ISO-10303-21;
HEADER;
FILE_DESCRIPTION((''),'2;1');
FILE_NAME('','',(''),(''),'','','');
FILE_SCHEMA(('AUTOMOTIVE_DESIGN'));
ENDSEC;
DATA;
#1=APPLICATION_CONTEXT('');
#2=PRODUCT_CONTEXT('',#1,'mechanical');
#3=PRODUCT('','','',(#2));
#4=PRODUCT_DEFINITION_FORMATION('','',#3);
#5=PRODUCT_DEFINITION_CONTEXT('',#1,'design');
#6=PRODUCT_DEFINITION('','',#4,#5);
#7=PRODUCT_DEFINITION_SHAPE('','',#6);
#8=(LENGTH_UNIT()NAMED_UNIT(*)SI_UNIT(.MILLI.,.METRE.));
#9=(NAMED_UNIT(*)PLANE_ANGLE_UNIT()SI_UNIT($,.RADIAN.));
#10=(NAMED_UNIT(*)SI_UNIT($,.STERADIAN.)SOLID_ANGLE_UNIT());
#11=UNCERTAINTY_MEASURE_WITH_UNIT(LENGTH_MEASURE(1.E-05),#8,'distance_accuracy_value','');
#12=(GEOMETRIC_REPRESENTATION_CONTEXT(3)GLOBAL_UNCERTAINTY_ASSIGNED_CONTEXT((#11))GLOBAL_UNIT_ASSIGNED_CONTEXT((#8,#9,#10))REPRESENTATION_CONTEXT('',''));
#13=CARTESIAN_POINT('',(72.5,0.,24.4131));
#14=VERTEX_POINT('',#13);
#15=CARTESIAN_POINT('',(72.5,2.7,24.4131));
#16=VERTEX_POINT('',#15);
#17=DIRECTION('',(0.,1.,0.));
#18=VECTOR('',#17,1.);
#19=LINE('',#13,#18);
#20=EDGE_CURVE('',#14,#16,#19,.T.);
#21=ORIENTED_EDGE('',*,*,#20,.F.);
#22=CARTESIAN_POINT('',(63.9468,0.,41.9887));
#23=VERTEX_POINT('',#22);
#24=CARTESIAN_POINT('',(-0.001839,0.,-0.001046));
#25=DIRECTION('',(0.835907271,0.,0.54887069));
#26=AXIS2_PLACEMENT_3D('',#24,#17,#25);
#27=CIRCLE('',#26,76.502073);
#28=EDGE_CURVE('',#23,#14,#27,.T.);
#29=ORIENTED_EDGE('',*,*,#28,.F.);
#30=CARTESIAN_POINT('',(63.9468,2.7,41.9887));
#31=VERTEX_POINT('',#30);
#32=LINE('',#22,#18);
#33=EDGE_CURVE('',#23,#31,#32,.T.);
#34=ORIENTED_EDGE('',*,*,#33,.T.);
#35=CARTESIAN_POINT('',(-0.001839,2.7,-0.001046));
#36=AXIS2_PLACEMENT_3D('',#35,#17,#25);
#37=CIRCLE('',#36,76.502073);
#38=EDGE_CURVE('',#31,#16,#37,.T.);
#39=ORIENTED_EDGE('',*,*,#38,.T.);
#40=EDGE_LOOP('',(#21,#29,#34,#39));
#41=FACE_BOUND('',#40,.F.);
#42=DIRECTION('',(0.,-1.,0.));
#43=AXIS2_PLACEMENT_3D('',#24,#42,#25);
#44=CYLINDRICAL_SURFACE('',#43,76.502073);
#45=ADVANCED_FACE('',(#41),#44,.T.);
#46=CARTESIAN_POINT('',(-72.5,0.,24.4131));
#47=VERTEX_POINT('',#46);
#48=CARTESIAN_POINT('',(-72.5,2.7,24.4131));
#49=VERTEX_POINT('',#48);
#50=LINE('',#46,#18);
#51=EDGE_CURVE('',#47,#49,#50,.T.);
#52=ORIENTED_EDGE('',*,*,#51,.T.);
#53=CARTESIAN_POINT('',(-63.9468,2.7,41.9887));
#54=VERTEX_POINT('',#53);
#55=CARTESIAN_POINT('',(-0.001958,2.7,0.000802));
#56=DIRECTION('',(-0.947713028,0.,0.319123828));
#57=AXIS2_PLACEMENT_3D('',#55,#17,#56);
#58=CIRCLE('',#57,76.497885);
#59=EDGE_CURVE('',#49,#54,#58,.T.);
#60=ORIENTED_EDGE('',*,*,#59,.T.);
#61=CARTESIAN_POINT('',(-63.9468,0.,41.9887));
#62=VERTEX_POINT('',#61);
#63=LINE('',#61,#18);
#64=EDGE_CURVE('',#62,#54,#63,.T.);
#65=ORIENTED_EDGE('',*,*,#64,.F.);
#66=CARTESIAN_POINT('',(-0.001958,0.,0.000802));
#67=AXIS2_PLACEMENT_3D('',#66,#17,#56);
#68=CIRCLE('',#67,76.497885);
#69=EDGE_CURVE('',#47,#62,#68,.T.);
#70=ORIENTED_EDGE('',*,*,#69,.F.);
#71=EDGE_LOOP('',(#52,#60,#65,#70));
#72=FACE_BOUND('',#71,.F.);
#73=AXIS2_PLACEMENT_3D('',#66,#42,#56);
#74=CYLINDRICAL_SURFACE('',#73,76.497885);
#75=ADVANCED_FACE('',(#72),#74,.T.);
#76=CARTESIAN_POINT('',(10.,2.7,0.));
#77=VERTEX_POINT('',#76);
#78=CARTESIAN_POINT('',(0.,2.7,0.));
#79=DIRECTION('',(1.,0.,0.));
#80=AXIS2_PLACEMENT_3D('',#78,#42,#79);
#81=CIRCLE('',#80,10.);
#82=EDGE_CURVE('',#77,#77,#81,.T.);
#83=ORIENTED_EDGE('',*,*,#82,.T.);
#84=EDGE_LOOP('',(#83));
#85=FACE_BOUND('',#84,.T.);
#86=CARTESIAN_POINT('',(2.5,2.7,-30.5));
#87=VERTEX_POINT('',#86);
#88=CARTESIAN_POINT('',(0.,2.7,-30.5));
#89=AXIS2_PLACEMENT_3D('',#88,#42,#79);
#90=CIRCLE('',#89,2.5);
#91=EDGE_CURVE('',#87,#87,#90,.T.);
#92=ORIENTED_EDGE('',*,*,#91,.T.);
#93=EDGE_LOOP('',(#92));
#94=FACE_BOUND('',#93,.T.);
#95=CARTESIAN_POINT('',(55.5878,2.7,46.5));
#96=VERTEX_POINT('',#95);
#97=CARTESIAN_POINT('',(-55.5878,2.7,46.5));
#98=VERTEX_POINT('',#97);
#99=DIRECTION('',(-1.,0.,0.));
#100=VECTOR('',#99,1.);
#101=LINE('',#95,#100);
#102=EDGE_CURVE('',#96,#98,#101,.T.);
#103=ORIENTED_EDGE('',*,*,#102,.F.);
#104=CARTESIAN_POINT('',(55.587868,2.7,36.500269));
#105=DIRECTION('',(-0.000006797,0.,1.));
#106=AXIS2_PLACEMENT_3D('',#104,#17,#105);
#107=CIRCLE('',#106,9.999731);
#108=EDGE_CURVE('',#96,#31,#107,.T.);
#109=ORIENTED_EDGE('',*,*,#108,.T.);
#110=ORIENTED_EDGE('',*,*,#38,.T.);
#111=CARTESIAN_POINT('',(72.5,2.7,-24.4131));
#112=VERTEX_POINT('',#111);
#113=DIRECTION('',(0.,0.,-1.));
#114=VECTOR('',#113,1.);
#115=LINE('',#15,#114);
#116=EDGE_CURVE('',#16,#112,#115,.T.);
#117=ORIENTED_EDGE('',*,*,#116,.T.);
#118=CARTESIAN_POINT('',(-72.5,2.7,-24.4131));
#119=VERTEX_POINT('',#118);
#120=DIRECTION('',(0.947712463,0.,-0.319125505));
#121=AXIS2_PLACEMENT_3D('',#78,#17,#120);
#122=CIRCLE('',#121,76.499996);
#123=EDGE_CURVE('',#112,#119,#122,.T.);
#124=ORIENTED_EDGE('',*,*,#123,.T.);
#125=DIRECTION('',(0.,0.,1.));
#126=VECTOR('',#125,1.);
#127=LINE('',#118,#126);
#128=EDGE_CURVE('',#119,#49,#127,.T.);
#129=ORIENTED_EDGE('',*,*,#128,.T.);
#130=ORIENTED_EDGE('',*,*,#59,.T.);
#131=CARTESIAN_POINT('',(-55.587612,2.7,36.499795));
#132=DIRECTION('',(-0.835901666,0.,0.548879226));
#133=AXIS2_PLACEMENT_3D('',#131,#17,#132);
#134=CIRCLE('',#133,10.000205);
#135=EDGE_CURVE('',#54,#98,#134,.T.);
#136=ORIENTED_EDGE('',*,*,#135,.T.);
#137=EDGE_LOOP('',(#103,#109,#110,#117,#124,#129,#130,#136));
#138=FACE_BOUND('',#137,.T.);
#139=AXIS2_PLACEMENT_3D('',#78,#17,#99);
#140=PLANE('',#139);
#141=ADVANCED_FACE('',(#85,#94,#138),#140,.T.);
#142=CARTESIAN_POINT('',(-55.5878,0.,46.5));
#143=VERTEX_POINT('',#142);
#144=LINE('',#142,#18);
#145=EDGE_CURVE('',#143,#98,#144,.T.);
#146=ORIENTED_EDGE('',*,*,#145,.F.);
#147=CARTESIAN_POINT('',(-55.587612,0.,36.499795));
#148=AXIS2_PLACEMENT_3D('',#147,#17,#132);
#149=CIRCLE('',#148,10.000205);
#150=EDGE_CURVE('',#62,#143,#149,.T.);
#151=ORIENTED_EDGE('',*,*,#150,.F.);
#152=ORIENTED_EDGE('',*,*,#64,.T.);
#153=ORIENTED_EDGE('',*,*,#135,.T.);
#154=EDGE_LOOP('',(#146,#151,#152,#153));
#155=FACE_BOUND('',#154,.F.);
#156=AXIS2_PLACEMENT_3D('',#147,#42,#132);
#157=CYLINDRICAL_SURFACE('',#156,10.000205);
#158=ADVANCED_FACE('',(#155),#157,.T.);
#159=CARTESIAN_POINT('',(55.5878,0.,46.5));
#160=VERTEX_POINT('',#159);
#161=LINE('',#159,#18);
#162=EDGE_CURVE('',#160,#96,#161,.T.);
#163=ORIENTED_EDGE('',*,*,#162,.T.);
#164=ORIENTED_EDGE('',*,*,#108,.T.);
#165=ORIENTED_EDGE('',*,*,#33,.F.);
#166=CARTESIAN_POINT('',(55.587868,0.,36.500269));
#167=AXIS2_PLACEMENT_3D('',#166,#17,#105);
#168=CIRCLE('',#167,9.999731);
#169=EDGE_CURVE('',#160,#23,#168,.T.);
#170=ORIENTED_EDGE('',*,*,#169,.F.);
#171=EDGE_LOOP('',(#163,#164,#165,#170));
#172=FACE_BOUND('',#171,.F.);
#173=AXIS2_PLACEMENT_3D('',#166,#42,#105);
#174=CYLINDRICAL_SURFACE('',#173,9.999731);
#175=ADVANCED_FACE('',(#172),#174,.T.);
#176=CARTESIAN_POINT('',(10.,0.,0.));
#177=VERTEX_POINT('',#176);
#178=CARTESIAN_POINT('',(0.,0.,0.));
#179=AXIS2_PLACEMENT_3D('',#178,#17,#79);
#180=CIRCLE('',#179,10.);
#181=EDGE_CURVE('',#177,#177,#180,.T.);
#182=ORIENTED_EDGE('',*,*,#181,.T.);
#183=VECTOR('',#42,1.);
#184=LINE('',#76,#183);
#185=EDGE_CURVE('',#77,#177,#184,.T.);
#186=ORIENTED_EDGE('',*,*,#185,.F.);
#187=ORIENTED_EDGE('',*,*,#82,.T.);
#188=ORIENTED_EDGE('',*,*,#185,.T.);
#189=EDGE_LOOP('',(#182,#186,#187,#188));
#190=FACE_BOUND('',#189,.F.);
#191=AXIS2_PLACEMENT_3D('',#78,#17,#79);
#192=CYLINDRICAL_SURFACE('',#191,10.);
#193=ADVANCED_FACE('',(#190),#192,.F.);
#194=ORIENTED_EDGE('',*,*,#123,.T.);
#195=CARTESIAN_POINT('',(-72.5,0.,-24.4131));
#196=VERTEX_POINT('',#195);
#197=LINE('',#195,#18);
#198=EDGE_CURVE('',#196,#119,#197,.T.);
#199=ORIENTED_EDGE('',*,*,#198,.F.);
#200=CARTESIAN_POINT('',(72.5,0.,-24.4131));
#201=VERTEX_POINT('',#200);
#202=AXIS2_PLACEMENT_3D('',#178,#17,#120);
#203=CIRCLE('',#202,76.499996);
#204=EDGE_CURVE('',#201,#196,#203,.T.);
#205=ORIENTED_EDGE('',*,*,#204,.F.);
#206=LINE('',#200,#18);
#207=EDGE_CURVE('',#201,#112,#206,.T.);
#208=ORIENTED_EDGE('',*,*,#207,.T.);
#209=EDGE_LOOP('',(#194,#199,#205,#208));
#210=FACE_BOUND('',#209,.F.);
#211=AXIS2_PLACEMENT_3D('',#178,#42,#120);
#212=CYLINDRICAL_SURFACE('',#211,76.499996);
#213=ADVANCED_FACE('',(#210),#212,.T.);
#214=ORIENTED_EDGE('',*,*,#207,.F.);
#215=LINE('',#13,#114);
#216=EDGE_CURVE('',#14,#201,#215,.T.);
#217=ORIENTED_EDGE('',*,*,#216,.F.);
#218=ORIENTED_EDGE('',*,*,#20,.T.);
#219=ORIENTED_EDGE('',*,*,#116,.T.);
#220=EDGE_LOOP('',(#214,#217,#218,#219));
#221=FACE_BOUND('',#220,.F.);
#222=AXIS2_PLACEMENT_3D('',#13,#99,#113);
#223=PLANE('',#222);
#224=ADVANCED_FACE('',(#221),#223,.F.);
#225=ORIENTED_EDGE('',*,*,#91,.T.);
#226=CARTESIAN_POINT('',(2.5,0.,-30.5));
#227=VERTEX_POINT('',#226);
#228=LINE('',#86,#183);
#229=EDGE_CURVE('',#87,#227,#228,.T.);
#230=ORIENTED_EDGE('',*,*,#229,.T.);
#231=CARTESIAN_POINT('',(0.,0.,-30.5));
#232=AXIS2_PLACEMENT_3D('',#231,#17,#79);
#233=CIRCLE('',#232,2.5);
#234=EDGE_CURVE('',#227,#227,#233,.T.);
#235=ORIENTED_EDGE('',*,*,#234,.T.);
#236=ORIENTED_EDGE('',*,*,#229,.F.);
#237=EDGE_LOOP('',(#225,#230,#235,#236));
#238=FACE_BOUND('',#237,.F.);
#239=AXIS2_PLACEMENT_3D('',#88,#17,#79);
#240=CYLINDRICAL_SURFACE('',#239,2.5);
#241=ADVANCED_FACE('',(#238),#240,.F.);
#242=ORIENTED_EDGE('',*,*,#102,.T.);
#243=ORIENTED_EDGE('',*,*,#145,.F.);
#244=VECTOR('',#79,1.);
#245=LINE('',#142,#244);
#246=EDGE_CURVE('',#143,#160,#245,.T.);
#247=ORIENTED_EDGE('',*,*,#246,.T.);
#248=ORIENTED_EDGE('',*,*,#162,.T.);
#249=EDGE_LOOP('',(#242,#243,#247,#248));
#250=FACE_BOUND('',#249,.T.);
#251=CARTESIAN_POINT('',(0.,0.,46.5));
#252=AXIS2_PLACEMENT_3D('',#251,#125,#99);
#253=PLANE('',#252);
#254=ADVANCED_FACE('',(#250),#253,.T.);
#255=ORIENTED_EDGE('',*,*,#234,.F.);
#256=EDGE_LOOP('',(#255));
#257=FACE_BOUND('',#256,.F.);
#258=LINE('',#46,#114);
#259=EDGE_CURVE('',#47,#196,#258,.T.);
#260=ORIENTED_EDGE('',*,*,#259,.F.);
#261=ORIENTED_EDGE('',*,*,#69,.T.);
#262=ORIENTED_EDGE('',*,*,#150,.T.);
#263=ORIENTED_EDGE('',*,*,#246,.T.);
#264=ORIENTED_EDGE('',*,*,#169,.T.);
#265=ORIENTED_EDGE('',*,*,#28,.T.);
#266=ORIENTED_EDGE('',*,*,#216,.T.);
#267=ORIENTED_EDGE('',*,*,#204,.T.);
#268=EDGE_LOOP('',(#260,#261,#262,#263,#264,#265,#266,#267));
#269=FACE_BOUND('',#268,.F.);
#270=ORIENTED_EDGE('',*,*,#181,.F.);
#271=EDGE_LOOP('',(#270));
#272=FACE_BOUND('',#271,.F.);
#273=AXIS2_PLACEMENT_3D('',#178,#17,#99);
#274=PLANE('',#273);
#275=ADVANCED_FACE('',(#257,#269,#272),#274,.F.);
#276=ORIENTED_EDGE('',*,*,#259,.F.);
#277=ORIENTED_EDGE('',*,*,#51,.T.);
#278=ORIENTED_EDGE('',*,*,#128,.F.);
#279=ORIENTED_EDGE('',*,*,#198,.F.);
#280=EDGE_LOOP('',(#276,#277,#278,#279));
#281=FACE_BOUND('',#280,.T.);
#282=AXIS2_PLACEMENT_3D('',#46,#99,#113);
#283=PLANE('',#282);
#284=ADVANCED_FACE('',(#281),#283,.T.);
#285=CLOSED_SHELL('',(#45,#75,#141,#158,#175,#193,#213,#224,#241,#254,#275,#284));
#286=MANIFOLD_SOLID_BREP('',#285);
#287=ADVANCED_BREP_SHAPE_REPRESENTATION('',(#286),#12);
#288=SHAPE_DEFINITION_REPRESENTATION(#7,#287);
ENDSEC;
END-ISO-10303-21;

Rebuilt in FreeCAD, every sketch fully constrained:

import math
import FreeCAD as App
import Part
import Sketcher

V = App.Vector
Q = App.Units.Quantity

doc = App.newDocument("Part")
body = doc.addObject("PartDesign::Body", "Body")

sketch1 = doc.addObject("Sketcher::SketchObject", "Sketch")
body.addObject(sketch1)
sketch1.AttachmentSupport = (doc.XZ_Plane, [""])
sketch1.MapMode = "FlatFace"
sketch1.addGeometry([
    Part.LineSegment(V(-55.5878, 46.5, 0), V(55.5878, 46.5, 0)),
    Part.ArcOfCircle(Part.Circle(V(55.5878, 36.5, 0), V(0, 0, 1), 10), math.radians(33.289768), math.radians(90)),
    Part.ArcOfCircle(Part.Circle(V(-0.001839, -0.001046, 0), V(0, 0, 1), 76.502073), math.radians(18.61035), math.radians(33.289572)),
    Part.LineSegment(V(72.5, 24.4131, 0), V(72.5, -24.4131, 0)),
    Part.ArcOfCircle(Part.Circle(V(0, 0, 0), V(0, 0, 1), 76.499996), math.radians(-161.389953), math.radians(-18.610047)),
    Part.LineSegment(V(-72.5, -24.4131, 0), V(-72.5, 24.4131, 0)),
    Part.ArcOfCircle(Part.Circle(V(-0.001958, 0.000802, 0), V(0, 0, 1), 76.497885), math.radians(146.710024), math.radians(161.390054)),
    Part.ArcOfCircle(Part.Circle(V(-55.5878, 36.5, 0), V(0, 0, 1), 9.999935), math.radians(90), math.radians(146.710232)),
], False)
sketch1.addConstraint([
    Sketcher.Constraint("Tangent", 0, 2, 1, 2),
    Sketcher.Constraint("Tangent", 1, 1, 2, 2),
    Sketcher.Constraint("Coincident", 2, 1, 3, 1),
    Sketcher.Constraint("Coincident", 3, 2, 4, 2),
    Sketcher.Constraint("Coincident", 4, 1, 5, 1),
    Sketcher.Constraint("Coincident", 5, 2, 6, 2),
    Sketcher.Constraint("Tangent", 6, 1, 7, 2),
    Sketcher.Constraint("Tangent", 7, 1, 0, 1),
    Sketcher.Constraint("Horizontal", 0),
    Sketcher.Constraint("Vertical", 3),
    Sketcher.Constraint("Vertical", 5),
    Sketcher.Constraint("Coincident", 4, 3, -1, 1),
    Sketcher.Constraint("Equal", 1, 7),
    Sketcher.Constraint("Symmetric", 2, 1, 4, 1, -1, 1),
    Sketcher.Constraint("Symmetric", 2, 3, 6, 3, -1),
    Sketcher.Constraint("Horizontal", 2, 1, 5, 2),
    Sketcher.Constraint("Horizontal", 1, 1, 6, 1),
    Sketcher.Constraint("Radius", 1, Q("10 mm")),
    Sketcher.Constraint("Radius", 4, Q("76.5 mm")),
    Sketcher.Constraint("DistanceY", -1, 1, 0, 2, Q("46.5 mm")),
    Sketcher.Constraint("DistanceX", -1, 1, 2, 1, Q("72.5 mm")),
    Sketcher.Constraint("Radius", 2, Q("76.502 mm")),
])
pad1 = doc.addObject("PartDesign::Pad", "Pad")
body.addObject(pad1)
pad1.Profile = sketch1
pad1.Length = 2.7
pad1.Reversed = True

sketch2 = doc.addObject("Sketcher::SketchObject", "Sketch001")
body.addObject(sketch2)
sketch2.AttachmentSupport = (doc.XZ_Plane, [""])
sketch2.MapMode = "FlatFace"
sketch2.AttachmentOffset = App.Placement(V(0, 0, -2.7), App.Rotation())
sketch2.addGeometry([
    Part.Circle(V(0, 0, 0), V(0, 0, 1), 10),
    Part.Circle(V(0, -30.5, 0), V(0, 0, 1), 2.5),
], False)
sketch2.addConstraint([
    Sketcher.Constraint("Coincident", 0, 3, -1, 1),
    Sketcher.Constraint("PointOnObject", 1, 3, -2),
    Sketcher.Constraint("Diameter", 0, Q("20 mm")),
    Sketcher.Constraint("Diameter", 1, Q("5 mm")),
    Sketcher.Constraint("DistanceY", 1, 3, -1, 1, Q("30.5 mm")),
])
pocket1 = doc.addObject("PartDesign::Pocket", "Pocket")
body.addObject(pocket1)
pocket1.Profile = sketch2
pocket1.Length = 10
pocket1.Reversed = True

doc.recompute()
